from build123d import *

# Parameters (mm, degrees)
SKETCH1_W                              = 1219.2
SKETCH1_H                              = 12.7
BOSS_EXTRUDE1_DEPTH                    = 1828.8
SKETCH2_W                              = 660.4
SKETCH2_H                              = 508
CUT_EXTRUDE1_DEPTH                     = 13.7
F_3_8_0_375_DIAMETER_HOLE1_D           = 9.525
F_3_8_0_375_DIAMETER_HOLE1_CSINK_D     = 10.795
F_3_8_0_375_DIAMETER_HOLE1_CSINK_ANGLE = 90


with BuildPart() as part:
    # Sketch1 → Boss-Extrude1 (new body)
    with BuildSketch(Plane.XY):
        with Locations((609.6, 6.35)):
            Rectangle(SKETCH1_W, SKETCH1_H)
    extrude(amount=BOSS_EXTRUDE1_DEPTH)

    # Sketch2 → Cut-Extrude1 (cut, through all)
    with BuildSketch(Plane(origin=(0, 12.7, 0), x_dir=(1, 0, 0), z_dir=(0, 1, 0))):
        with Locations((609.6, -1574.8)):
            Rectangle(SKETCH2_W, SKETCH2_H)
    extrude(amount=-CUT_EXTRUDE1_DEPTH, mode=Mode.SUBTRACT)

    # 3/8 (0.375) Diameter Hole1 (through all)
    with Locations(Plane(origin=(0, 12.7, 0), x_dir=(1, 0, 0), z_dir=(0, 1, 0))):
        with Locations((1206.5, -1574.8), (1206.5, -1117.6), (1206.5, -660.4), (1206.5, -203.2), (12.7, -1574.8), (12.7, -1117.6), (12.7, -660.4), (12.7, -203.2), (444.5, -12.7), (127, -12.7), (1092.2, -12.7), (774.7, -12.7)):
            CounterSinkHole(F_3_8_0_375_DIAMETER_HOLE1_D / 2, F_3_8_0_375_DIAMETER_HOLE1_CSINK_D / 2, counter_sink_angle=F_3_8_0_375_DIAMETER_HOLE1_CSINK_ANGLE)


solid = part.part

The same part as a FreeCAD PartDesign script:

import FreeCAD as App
import Part
import Sketcher

V = App.Vector
Q = App.Units.Quantity

doc = App.newDocument("Part")
params = doc.addObject("Spreadsheet::Sheet", "Params")
for row, (alias, value) in enumerate([
    ("sketch1_width", "48 in"),
    ("sketch1_height", "0.5 in"),
    ("pad1_length", "72 in"),
    ("sketch2_width", "26 in"),
    ("sketch2_height", "20 in"),
    ("sketch3_diameter", "0.375 in"),
    ("hole_diameter", "0.375 in"),
    ("hole_csink_diameter", "0.425 in"),
], start=1):
    params.set(f"A{row}", alias)
    params.set(f"B{row}", "=" + value)
    params.setAlias(f"B{row}", alias)

body = doc.addObject("PartDesign::Body", "Body")

sketch1 = doc.addObject("Sketcher::SketchObject", "Sketch")
body.addObject(sketch1)
sketch1.AttachmentSupport = (doc.XY_Plane, [""])
sketch1.MapMode = "FlatFace"
sketch1.addGeometry([
    Part.LineSegment(V(0, 13, 0), V(0, 0, 0)),
    Part.LineSegment(V(0, 0, 0), V(1219, 0, 0)),
    Part.LineSegment(V(1219, 0, 0), V(1219, 13, 0)),
    Part.LineSegment(V(1219, 13, 0), V(0, 13, 0)),
], False)
sketch1.addConstraint([
    Sketcher.Constraint("Coincident", 0, 2, 1, 1),
    Sketcher.Constraint("Coincident", 1, 2, 2, 1),
    Sketcher.Constraint("Coincident", 2, 2, 3, 1),
    Sketcher.Constraint("Coincident", 3, 2, 0, 1),
    Sketcher.Constraint("Vertical", 0),
    Sketcher.Constraint("Horizontal", 1),
    Sketcher.Constraint("Vertical", 2),
    Sketcher.Constraint("Horizontal", 3),
    Sketcher.Constraint("Coincident", 0, 2, -1, 1),
    Sketcher.Constraint("DistanceX", 1, 1, 1, 2, Q("48 in")),
    Sketcher.Constraint("DistanceY", 0, 2, 0, 1, Q("0.5 in")),
])
sketch1.setExpression("Constraints[9]", "Params.sketch1_width")
sketch1.setExpression("Constraints[10]", "Params.sketch1_height")
pad1 = doc.addObject("PartDesign::Pad", "Pad")
body.addObject(pad1)
pad1.Profile = sketch1
pad1.setExpression("Length", "Params.pad1_length")

sketch2 = doc.addObject("Sketcher::SketchObject", "Sketch001")
body.addObject(sketch2)
sketch2.AttachmentSupport = (doc.XZ_Plane, [""])
sketch2.MapMode = "FlatFace"
sketch2.AttachmentOffset = App.Placement(V(0, 0, -0.5 * 25.4), App.Rotation())
sketch2.addGeometry([
    Part.LineSegment(V(279, 1321, 0), V(279, 1829, 0)),
    Part.LineSegment(V(279, 1829, 0), V(940, 1829, 0)),
    Part.LineSegment(V(940, 1829, 0), V(940, 1321, 0)),
    Part.LineSegment(V(940, 1321, 0), V(279, 1321, 0)),
], False)
sketch2.addConstraint([
    Sketcher.Constraint("Coincident", 0, 2, 1, 1),
    Sketcher.Constraint("Coincident", 1, 2, 2, 1),
    Sketcher.Constraint("Coincident", 2, 2, 3, 1),
    Sketcher.Constraint("Coincident", 3, 2, 0, 1),
    Sketcher.Constraint("Vertical", 0),
    Sketcher.Constraint("Horizontal", 1),
    Sketcher.Constraint("Vertical", 2),
    Sketcher.Constraint("Horizontal", 3),
    Sketcher.Constraint("DistanceX", 1, 1, 1, 2, Q("26 in")),
    Sketcher.Constraint("DistanceY", 0, 1, 0, 2, Q("20 in")),
    Sketcher.Constraint("DistanceX", -1, 1, 0, 2, Q("11 in")),
    Sketcher.Constraint("DistanceY", -1, 1, 0, 2, Q("72 in")),
])
sketch2.setExpression("Constraints[8]", "Params.sketch2_width")
sketch2.setExpression("Constraints[9]", "Params.sketch2_height")
pocket1 = doc.addObject("PartDesign::Pocket", "Pocket")
body.addObject(pocket1)
pocket1.Profile = sketch2
pocket1.Type = "ThroughAll"
pocket1.Reversed = True

sketch3 = doc.addObject("Sketcher::SketchObject", "Sketch002")
body.addObject(sketch3)
sketch3.AttachmentSupport = (doc.XZ_Plane, [""])
sketch3.MapMode = "FlatFace"
sketch3.AttachmentOffset = App.Placement(V(0, 0, -0.5 * 25.4), App.Rotation())
sketch3.addGeometry([
    Part.Circle(V(1206.5, 1574.8, 0), V(0, 0, 1), 4.8),
    Part.Circle(V(1206.5, 1117.6, 0), V(0, 0, 1), 4.8),
    Part.Circle(V(1206.5, 660.4, 0), V(0, 0, 1), 4.8),
    Part.Circle(V(1206.5, 203.2, 0), V(0, 0, 1), 4.8),
    Part.Circle(V(12.7, 1574.8, 0), V(0, 0, 1), 4.8),
    Part.Circle(V(12.7, 1117.6, 0), V(0, 0, 1), 4.8),
    Part.Circle(V(12.7, 660.4, 0), V(0, 0, 1), 4.8),
    Part.Circle(V(12.7, 203.2, 0), V(0, 0, 1), 4.8),
    Part.Circle(V(444.5, 12.7, 0), V(0, 0, 1), 4.8),
    Part.Circle(V(127, 12.7, 0), V(0, 0, 1), 4.8),
    Part.Circle(V(1092.2, 12.7, 0), V(0, 0, 1), 4.8),
    Part.Circle(V(774.7, 12.7, 0), V(0, 0, 1), 4.8),
], False)
sketch3.addConstraint([
    Sketcher.Constraint("Equal", 0, 1),
    Sketcher.Constraint("Equal", 1, 2),
    Sketcher.Constraint("Equal", 2, 3),
    Sketcher.Constraint("Equal", 3, 4),
    Sketcher.Constraint("Equal", 4, 5),
    Sketcher.Constraint("Equal", 5, 6),
    Sketcher.Constraint("Equal", 6, 7),
    Sketcher.Constraint("Equal", 7, 8),
    Sketcher.Constraint("Equal", 8, 9),
    Sketcher.Constraint("Equal", 9, 10),
    Sketcher.Constraint("Equal", 10, 11),
    Sketcher.Constraint("Horizontal", 0, 3, 4, 3),
    Sketcher.Constraint("Horizontal", 1, 3, 5, 3),
    Sketcher.Constraint("Horizontal", 2, 3, 6, 3),
    Sketcher.Constraint("Horizontal", 3, 3, 7, 3),
    Sketcher.Constraint("Horizontal", 8, 3, 9, 3),
    Sketcher.Constraint("Horizontal", 9, 3, 10, 3),
    Sketcher.Constraint("Horizontal", 10, 3, 11, 3),
    Sketcher.Constraint("Vertical", 0, 3, 1, 3),
    Sketcher.Constraint("Vertical", 1, 3, 2, 3),
    Sketcher.Constraint("Vertical", 2, 3, 3, 3),
    Sketcher.Constraint("Vertical", 4, 3, 5, 3),
    Sketcher.Constraint("Vertical", 5, 3, 6, 3),
    Sketcher.Constraint("Vertical", 6, 3, 7, 3),
    Sketcher.Constraint("Diameter", 0, Q("0.375 in")),
    Sketcher.Constraint("DistanceY", -1, 1, 0, 3, Q("62 in")),
    Sketcher.Constraint("DistanceY", -1, 1, 1, 3, Q("44 in")),
    Sketcher.Constraint("DistanceY", -1, 1, 2, 3, Q("26 in")),
    Sketcher.Constraint("DistanceY", -1, 1, 3, 3, Q("8 in")),
    Sketcher.Constraint("DistanceX", -1, 1, 9, 3, Q("5 in")),
    Sketcher.Constraint("DistanceX", -1, 1, 10, 3, Q("43 in")),
    Sketcher.Constraint("DistanceX", 4, 3, 0, 3, Q("47 in")),
    Sketcher.Constraint("DistanceX", 7, 3, 8, 3, Q("17 in")),
    Sketcher.Constraint("DistanceX", 8, 3, 11, 3, Q("13 in")),
    Sketcher.Constraint("DistanceX", -1, 1, 0, 3, Q("47.5 in")),
    Sketcher.Constraint("DistanceY", -1, 1, 8, 3, Q("0.5 in")),
])
sketch3.setExpression("Constraints[24]", "Params.sketch3_diameter")
doc.recompute()
hole = doc.addObject("PartDesign::Hole", "Hole")
body.addObject(hole)
hole.Profile = sketch3
hole.ThreadType = "None"
hole.setExpression("Diameter", "Params.hole_diameter")
hole.DepthType = "ThroughAll"
hole.HoleCutType = "Countersink"
hole.setExpression("HoleCutDiameter", "Params.hole_csink_diameter")
hole.HoleCutCountersinkAngle = 90
hole.Reversed = True

doc.recompute()
